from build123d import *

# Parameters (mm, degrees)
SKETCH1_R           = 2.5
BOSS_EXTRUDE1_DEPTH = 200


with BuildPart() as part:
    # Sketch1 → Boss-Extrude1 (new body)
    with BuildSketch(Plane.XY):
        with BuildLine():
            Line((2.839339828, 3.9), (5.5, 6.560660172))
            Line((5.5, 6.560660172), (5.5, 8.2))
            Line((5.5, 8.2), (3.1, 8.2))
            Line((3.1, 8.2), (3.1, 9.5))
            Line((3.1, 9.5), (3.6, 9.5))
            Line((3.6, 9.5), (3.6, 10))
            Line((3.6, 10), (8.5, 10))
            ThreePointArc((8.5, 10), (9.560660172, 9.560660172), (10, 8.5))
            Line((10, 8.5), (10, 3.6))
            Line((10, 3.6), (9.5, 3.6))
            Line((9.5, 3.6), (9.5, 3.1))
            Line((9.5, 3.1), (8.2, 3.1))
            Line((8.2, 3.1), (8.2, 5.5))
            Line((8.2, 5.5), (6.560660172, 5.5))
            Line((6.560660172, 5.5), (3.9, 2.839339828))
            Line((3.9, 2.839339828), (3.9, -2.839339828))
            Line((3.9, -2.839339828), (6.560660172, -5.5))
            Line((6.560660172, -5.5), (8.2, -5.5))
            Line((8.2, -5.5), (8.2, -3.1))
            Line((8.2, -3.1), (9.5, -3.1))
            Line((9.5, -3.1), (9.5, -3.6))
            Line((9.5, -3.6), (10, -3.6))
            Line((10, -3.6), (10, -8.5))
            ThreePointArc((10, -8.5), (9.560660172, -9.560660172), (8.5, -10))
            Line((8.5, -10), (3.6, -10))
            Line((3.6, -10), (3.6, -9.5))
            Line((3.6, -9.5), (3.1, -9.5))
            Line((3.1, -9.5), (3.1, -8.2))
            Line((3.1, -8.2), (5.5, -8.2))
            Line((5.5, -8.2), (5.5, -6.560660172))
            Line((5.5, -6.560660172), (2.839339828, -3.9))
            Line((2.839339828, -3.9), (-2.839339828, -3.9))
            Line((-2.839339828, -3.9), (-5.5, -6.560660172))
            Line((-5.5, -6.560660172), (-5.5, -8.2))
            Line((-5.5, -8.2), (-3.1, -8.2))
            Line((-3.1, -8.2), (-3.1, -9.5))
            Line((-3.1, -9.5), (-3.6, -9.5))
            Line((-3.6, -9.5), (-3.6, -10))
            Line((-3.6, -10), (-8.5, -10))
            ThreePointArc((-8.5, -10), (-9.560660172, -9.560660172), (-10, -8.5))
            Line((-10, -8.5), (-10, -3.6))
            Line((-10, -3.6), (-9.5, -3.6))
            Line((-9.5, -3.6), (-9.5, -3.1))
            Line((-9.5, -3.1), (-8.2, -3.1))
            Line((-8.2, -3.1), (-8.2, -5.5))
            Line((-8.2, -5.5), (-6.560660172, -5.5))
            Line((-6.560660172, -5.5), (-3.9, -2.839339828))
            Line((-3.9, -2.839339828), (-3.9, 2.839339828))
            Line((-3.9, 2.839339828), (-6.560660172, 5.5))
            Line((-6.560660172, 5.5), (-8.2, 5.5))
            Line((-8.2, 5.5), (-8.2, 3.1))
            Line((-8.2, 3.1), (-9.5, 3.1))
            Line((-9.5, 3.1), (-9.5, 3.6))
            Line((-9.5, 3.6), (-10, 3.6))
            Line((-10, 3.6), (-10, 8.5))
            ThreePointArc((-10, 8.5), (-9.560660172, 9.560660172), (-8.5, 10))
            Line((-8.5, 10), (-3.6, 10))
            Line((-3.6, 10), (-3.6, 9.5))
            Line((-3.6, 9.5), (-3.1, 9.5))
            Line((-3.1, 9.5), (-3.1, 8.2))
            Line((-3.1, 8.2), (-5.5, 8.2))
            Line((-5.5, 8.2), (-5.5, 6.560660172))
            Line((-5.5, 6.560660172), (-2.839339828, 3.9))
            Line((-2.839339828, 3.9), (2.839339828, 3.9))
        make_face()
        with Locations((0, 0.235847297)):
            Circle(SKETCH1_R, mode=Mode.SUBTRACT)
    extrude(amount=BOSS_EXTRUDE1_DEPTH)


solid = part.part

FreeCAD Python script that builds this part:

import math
import FreeCAD as App
import Part
import Sketcher
from FreeCAD import Vector
Q = App.Units.Quantity

doc = App.newDocument("Part")
body = doc.addObject("PartDesign::Body", "Body")

# Sketch on XY plane
sketch1 = body.newObject("Sketcher::SketchObject", "Sketch")
sketch1.AttachmentSupport = (doc.getObject("XY_Plane"), [""])
sketch1.MapMode = "FlatFace"
sketch1.addGeometry([
    Part.LineSegment(Vector(5.5, 6.6, 0), Vector(2.8, 3.9, 0)),  # 0
    Part.LineSegment(Vector(2.8, 3.9, 0), Vector(-2.8, 3.9, 0)),  # 1
    Part.LineSegment(Vector(-2.8, 3.9, 0), Vector(-5.5, 6.6, 0)),  # 2
    Part.LineSegment(Vector(-5.5, 6.6, 0), Vector(-5.5, 8.2, 0)),  # 3
    Part.LineSegment(Vector(-5.5, 8.2, 0), Vector(-3.1, 8.2, 0)),  # 4
    Part.LineSegment(Vector(-3.1, 8.2, 0), Vector(-3.1, 9.5, 0)),  # 5
    Part.LineSegment(Vector(-3.1, 9.5, 0), Vector(-3.6, 9.5, 0)),  # 6
    Part.LineSegment(Vector(-3.6, 9.5, 0), Vector(-3.6, 10, 0)),  # 7
    Part.LineSegment(Vector(-3.6, 10, 0), Vector(-8.5, 10, 0)),  # 8
    Part.ArcOfCircle(Part.Circle(Vector(-8.5, 8.5, 0), Vector(0, 0, 1), 1.5), math.radians(90), math.radians(180)),  # 9
    Part.LineSegment(Vector(-10, 8.5, 0), Vector(-10, 3.6, 0)),  # 10
    Part.LineSegment(Vector(-10, 3.6, 0), Vector(-9.5, 3.6, 0)),  # 11
    Part.LineSegment(Vector(-9.5, 3.6, 0), Vector(-9.5, 3.1, 0)),  # 12
    Part.LineSegment(Vector(-9.5, 3.1, 0), Vector(-8.2, 3.1, 0)),  # 13
    Part.LineSegment(Vector(-8.2, 3.1, 0), Vector(-8.2, 5.5, 0)),  # 14
    Part.LineSegment(Vector(-8.2, 5.5, 0), Vector(-6.6, 5.5, 0)),  # 15
    Part.LineSegment(Vector(-6.6, 5.5, 0), Vector(-3.9, 2.8, 0)),  # 16
    Part.LineSegment(Vector(-3.9, 2.8, 0), Vector(-3.9, -2.8, 0)),  # 17
    Part.LineSegment(Vector(-3.9, -2.8, 0), Vector(-6.6, -5.5, 0)),  # 18
    Part.LineSegment(Vector(-6.6, -5.5, 0), Vector(-8.2, -5.5, 0)),  # 19
    Part.LineSegment(Vector(-8.2, -5.5, 0), Vector(-8.2, -3.1, 0)),  # 20
    Part.LineSegment(Vector(-8.2, -3.1, 0), Vector(-9.5, -3.1, 0)),  # 21
    Part.LineSegment(Vector(-9.5, -3.1, 0), Vector(-9.5, -3.6, 0)),  # 22
    Part.LineSegment(Vector(-9.5, -3.6, 0), Vector(-10, -3.6, 0)),  # 23
    Part.LineSegment(Vector(-10, -3.6, 0), Vector(-10, -8.5, 0)),  # 24
    Part.ArcOfCircle(Part.Circle(Vector(-8.5, -8.5, 0), Vector(0, 0, 1), 1.5), math.radians(180), math.radians(270)),  # 25
    Part.LineSegment(Vector(-8.5, -10, 0), Vector(-3.6, -10, 0)),  # 26
    Part.LineSegment(Vector(-3.6, -10, 0), Vector(-3.6, -9.5, 0)),  # 27
    Part.LineSegment(Vector(-3.6, -9.5, 0), Vector(-3.1, -9.5, 0)),  # 28
    Part.LineSegment(Vector(-3.1, -9.5, 0), Vector(-3.1, -8.2, 0)),  # 29
    Part.LineSegment(Vector(-3.1, -8.2, 0), Vector(-5.5, -8.2, 0)),  # 30
    Part.LineSegment(Vector(-5.5, -8.2, 0), Vector(-5.5, -6.6, 0)),  # 31
    Part.LineSegment(Vector(-5.5, -6.6, 0), Vector(-2.8, -3.9, 0)),  # 32
    Part.LineSegment(Vector(-2.8, -3.9, 0), Vector(2.8, -3.9, 0)),  # 33
    Part.LineSegment(Vector(2.8, -3.9, 0), Vector(5.5, -6.6, 0)),  # 34
    Part.LineSegment(Vector(5.5, -6.6, 0), Vector(5.5, -8.2, 0)),  # 35
    Part.LineSegment(Vector(5.5, -8.2, 0), Vector(3.1, -8.2, 0)),  # 36
    Part.LineSegment(Vector(3.1, -8.2, 0), Vector(3.1, -9.5, 0)),  # 37
    Part.LineSegment(Vector(3.1, -9.5, 0), Vector(3.6, -9.5, 0)),  # 38
    Part.LineSegment(Vector(3.6, -9.5, 0), Vector(3.6, -10, 0)),  # 39
    Part.LineSegment(Vector(3.6, -10, 0), Vector(8.5, -10, 0)),  # 40
    Part.ArcOfCircle(Part.Circle(Vector(8.5, -8.5, 0), Vector(0, 0, 1), 1.5), math.radians(-90), math.radians(0)),  # 41
    Part.LineSegment(Vector(10, -8.5, 0), Vector(10, -3.6, 0)),  # 42
    Part.LineSegment(Vector(10, -3.6, 0), Vector(9.5, -3.6, 0)),  # 43
    Part.LineSegment(Vector(9.5, -3.6, 0), Vector(9.5, -3.1, 0)),  # 44
    Part.LineSegment(Vector(9.5, -3.1, 0), Vector(8.2, -3.1, 0)),  # 45
    Part.LineSegment(Vector(8.2, -3.1, 0), Vector(8.2, -5.5, 0)),  # 46
    Part.LineSegment(Vector(8.2, -5.5, 0), Vector(6.6, -5.5, 0)),  # 47
    Part.LineSegment(Vector(6.6, -5.5, 0), Vector(3.9, -2.8, 0)),  # 48
    Part.LineSegment(Vector(3.9, -2.8, 0), Vector(3.9, 2.8, 0)),  # 49
    Part.LineSegment(Vector(3.9, 2.8, 0), Vector(6.6, 5.5, 0)),  # 50
    Part.LineSegment(Vector(6.6, 5.5, 0), Vector(8.2, 5.5, 0)),  # 51
    Part.LineSegment(Vector(8.2, 5.5, 0), Vector(8.2, 3.1, 0)),  # 52
    Part.LineSegment(Vector(8.2, 3.1, 0), Vector(9.5, 3.1, 0)),  # 53
    Part.LineSegment(Vector(9.5, 3.1, 0), Vector(9.5, 3.6, 0)),  # 54
    Part.LineSegment(Vector(9.5, 3.6, 0), Vector(10, 3.6, 0)),  # 55
    Part.LineSegment(Vector(10, 3.6, 0), Vector(10, 8.5, 0)),  # 56
    Part.ArcOfCircle(Part.Circle(Vector(8.5, 8.5, 0), Vector(0, 0, 1), 1.5), math.radians(0), math.radians(90)),  # 57
    Part.LineSegment(Vector(8.5, 10, 0), Vector(3.6, 10, 0)),  # 58
    Part.LineSegment(Vector(3.6, 10, 0), Vector(3.6, 9.5, 0)),  # 59
    Part.LineSegment(Vector(3.6, 9.5, 0), Vector(3.1, 9.5, 0)),  # 60
    Part.LineSegment(Vector(3.1, 9.5, 0), Vector(3.1, 8.2, 0)),  # 61
    Part.LineSegment(Vector(3.1, 8.2, 0), Vector(5.5, 8.2, 0)),  # 62
    Part.LineSegment(Vector(5.5, 8.2, 0), Vector(5.5, 6.6, 0)),  # 63
    Part.Circle(Vector(0, 0.2, 0), Vector(0, 0, 1), 2.5),  # 64
], False)
sketch1.addConstraint([
    Sketcher.Constraint("Coincident", 0, 2, 1, 1),
    Sketcher.Constraint("Coincident", 1, 2, 2, 1),
    Sketcher.Constraint("Coincident", 2, 2, 3, 1),
    Sketcher.Constraint("Coincident", 3, 2, 4, 1),
    Sketcher.Constraint("Coincident", 4, 2, 5, 1),
    Sketcher.Constraint("Coincident", 5, 2, 6, 1),
    Sketcher.Constraint("Coincident", 6, 2, 7, 1),
    Sketcher.Constraint("Coincident", 7, 2, 8, 1),
    Sketcher.Constraint("Tangent", 8, 2, 9, 1),
    Sketcher.Constraint("Tangent", 9, 2, 10, 1),
    Sketcher.Constraint("Coincident", 10, 2, 11, 1),
    Sketcher.Constraint("Coincident", 11, 2, 12, 1),
    Sketcher.Constraint("Coincident", 12, 2, 13, 1),
    Sketcher.Constraint("Coincident", 13, 2, 14, 1),
    Sketcher.Constraint("Coincident", 14, 2, 15, 1),
    Sketcher.Constraint("Coincident", 15, 2, 16, 1),
    Sketcher.Constraint("Coincident", 16, 2, 17, 1),
    Sketcher.Constraint("Coincident", 17, 2, 18, 1),
    Sketcher.Constraint("Coincident", 18, 2, 19, 1),
    Sketcher.Constraint("Coincident", 19, 2, 20, 1),
    Sketcher.Constraint("Coincident", 20, 2, 21, 1),
    Sketcher.Constraint("Coincident", 21, 2, 22, 1),
    Sketcher.Constraint("Coincident", 22, 2, 23, 1),
    Sketcher.Constraint("Coincident", 23, 2, 24, 1),
    Sketcher.Constraint("Tangent", 24, 2, 25, 1),
    Sketcher.Constraint("Tangent", 25, 2, 26, 1),
    Sketcher.Constraint("Coincident", 26, 2, 27, 1),
    Sketcher.Constraint("Coincident", 27, 2, 28, 1),
    Sketcher.Constraint("Coincident", 28, 2, 29, 1),
    Sketcher.Constraint("Coincident", 29, 2, 30, 1),
    Sketcher.Constraint("Coincident", 30, 2, 31, 1),
    Sketcher.Constraint("Coincident", 31, 2, 32, 1),
    Sketcher.Constraint("Coincident", 32, 2, 33, 1),
    Sketcher.Constraint("Coincident", 33, 2, 34, 1),
    Sketcher.Constraint("Coincident", 34, 2, 35, 1),
    Sketcher.Constraint("Coincident", 35, 2, 36, 1),
    Sketcher.Constraint("Coincident", 36, 2, 37, 1),
    Sketcher.Constraint("Coincident", 37, 2, 38, 1),
    Sketcher.Constraint("Coincident", 38, 2, 39, 1),
    Sketcher.Constraint("Coincident", 39, 2, 40, 1),
    Sketcher.Constraint("Tangent", 40, 2, 41, 1),
    Sketcher.Constraint("Tangent", 41, 2, 42, 1),
    Sketcher.Constraint("Coincident", 42, 2, 43, 1),
    Sketcher.Constraint("Coincident", 43, 2, 44, 1),
    Sketcher.Constraint("Coincident", 44, 2, 45, 1),
    Sketcher.Constraint("Coincident", 45, 2, 46, 1),
    Sketcher.Constraint("Coincident", 46, 2, 47, 1),
    Sketcher.Constraint("Coincident", 47, 2, 48, 1),
    Sketcher.Constraint("Coincident", 48, 2, 49, 1),
    Sketcher.Constraint("Coincident", 49, 2, 50, 1),
    Sketcher.Constraint("Coincident", 50, 2, 51, 1),
    Sketcher.Constraint("Coincident", 51, 2, 52, 1),
    Sketcher.Constraint("Coincident", 52, 2, 53, 1),
    Sketcher.Constraint("Coincident", 53, 2, 54, 1),
    Sketcher.Constraint("Coincident", 54, 2, 55, 1),
    Sketcher.Constraint("Coincident", 55, 2, 56, 1),
    Sketcher.Constraint("Tangent", 56, 2, 57, 1),
    Sketcher.Constraint("Tangent", 57, 2, 58, 1),
    Sketcher.Constraint("Coincident", 58, 2, 59, 1),
    Sketcher.Constraint("Coincident", 59, 2, 60, 1),
    Sketcher.Constraint("Coincident", 60, 2, 61, 1),
    Sketcher.Constraint("Coincident", 61, 2, 62, 1),
    Sketcher.Constraint("Coincident", 62, 2, 63, 1),
    Sketcher.Constraint("Coincident", 63, 2, 0, 1),
    Sketcher.Constraint("Horizontal", 1),
    Sketcher.Constraint("Vertical", 3),
    Sketcher.Constraint("Horizontal", 4),
    Sketcher.Constraint("Vertical", 5),
    Sketcher.Constraint("Horizontal", 6),
    Sketcher.Constraint("Vertical", 7),
    Sketcher.Constraint("Horizontal", 8),
    Sketcher.Constraint("Vertical", 10),
    Sketcher.Constraint("Horizontal", 11),
    Sketcher.Constraint("Vertical", 12),
    Sketcher.Constraint("Horizontal", 13),
    Sketcher.Constraint("Vertical", 14),
    Sketcher.Constraint("Horizontal", 15),
    Sketcher.Constraint("Vertical", 17),
    Sketcher.Constraint("Horizontal", 19),
    Sketcher.Constraint("Vertical", 20),
    Sketcher.Constraint("Horizontal", 21),
    Sketcher.Constraint("Vertical", 22),
    Sketcher.Constraint("Horizontal", 23),
    Sketcher.Constraint("Vertical", 24),
    Sketcher.Constraint("Horizontal", 26),
    Sketcher.Constraint("Vertical", 27),
    Sketcher.Constraint("Horizontal", 28),
    Sketcher.Constraint("Vertical", 29),
    Sketcher.Constraint("Horizontal", 30),
    Sketcher.Constraint("Vertical", 31),
    Sketcher.Constraint("Horizontal", 33),
    Sketcher.Constraint("Vertical", 35),
    Sketcher.Constraint("Horizontal", 36),
    Sketcher.Constraint("Vertical", 37),
    Sketcher.Constraint("Horizontal", 38),
    Sketcher.Constraint("Vertical", 39),
    Sketcher.Constraint("Horizontal", 40),
    Sketcher.Constraint("Vertical", 42),
    Sketcher.Constraint("Horizontal", 43),
    Sketcher.Constraint("Vertical", 44),
    Sketcher.Constraint("Horizontal", 45),
    Sketcher.Constraint("Vertical", 46),
    Sketcher.Constraint("Horizontal", 47),
    Sketcher.Constraint("Vertical", 49),
    Sketcher.Constraint("Horizontal", 51),
    Sketcher.Constraint("Vertical", 52),
    Sketcher.Constraint("Horizontal", 53),
    Sketcher.Constraint("Vertical", 54),
    Sketcher.Constraint("Horizontal", 55),
    Sketcher.Constraint("Vertical", 56),
    Sketcher.Constraint("Horizontal", 58),
    Sketcher.Constraint("Vertical", 59),
    Sketcher.Constraint("Horizontal", 60),
    Sketcher.Constraint("Vertical", 61),
    Sketcher.Constraint("Horizontal", 62),
    Sketcher.Constraint("Vertical", 63),
    Sketcher.Constraint("Equal", 9, 25),
    Sketcher.Constraint("Equal", 25, 41),
    Sketcher.Constraint("Equal", 41, 57),
    Sketcher.Constraint("Symmetric", 9, 3, 41, 3, -1, 1),
    Sketcher.Constraint("Symmetric", 25, 3, 57, 3, -1, 1),
    Sketcher.Constraint("Symmetric", 0, 2, 32, 2, -1, 1),
    Sketcher.Constraint("Symmetric", 2, 2, 34, 2, -1, 1),
    Sketcher.Constraint("Symmetric", 4, 2, 36, 2, -1, 1),
    Sketcher.Constraint("Symmetric", 6, 2, 38, 2, -1, 1),
    Sketcher.Constraint("Symmetric", 11, 2, 43, 2, -1, 1),
    Sketcher.Constraint("Symmetric", 13, 2, 45, 2, -1, 1),
    Sketcher.Constraint("Symmetric", 15, 2, 47, 2, -1, 1),
    Sketcher.Constraint("Symmetric", 16, 2, 48, 2, -1, 1),
    Sketcher.Constraint("Symmetric", 18, 2, 50, 2, -1, 1),
    Sketcher.Constraint("Symmetric", 20, 2, 52, 2, -1, 1),
    Sketcher.Constraint("Symmetric", 22, 2, 54, 2, -1, 1),
    Sketcher.Constraint("Symmetric", 27, 2, 59, 2, -1, 1),
    Sketcher.Constraint("Symmetric", 29, 2, 61, 2, -1, 1),
    Sketcher.Constraint("Symmetric", 31, 2, 63, 2, -1, 1),
    Sketcher.Constraint("Symmetric", 25, 3, 41, 3, -2),
    Sketcher.Constraint("Symmetric", 31, 2, 34, 2, -2),
    Sketcher.Constraint("Symmetric", 29, 2, 36, 2, -2),
    Sketcher.Constraint("Symmetric", 27, 2, 38, 2, -2),
    Sketcher.Constraint("Symmetric", 22, 2, 43, 2, -2),
    Sketcher.Constraint("Symmetric", 20, 2, 45, 2, -2),
    Sketcher.Constraint("Symmetric", 18, 2, 47, 2, -2),
    Sketcher.Constraint("PointOnObject", 64, 3, -2),
    Sketcher.Constraint("Perpendicular", 0, 2),
    Sketcher.Constraint("Parallel", 2, 16),
    Sketcher.Constraint("Perpendicular", 16, 18),
    Sketcher.Constraint("Perpendicular", 32, 34),
    Sketcher.Constraint("Perpendicular", 48, 50),
    Sketcher.Constraint("Horizontal", 17, 2, 48, 2),
    Sketcher.Constraint("Equal", 6, 11),
    Sketcher.Constraint("Equal", 51, 3),
    Sketcher.Constraint("Equal", 53, 5),
    Sketcher.Constraint("Equal", 60, 7),
    Sketcher.Constraint("Equal", 58, 10),
    Sketcher.Constraint("Equal", 7, 12),
    Sketcher.Constraint("Equal", 62, 14),
    Sketcher.Constraint("Equal", 33, 17),
    Sketcher.Constraint("Equal", 2, 16),
    Sketcher.Constraint("Diameter", 64, Q("5 mm")),
    Sketcher.Constraint("Radius", 9, Q("1.5 mm")),
    Sketcher.Constraint("DistanceX", 4, 1, 4, 2, Q("2.4 mm")),
    Sketcher.Constraint("DistanceX", 6, 2, 6, 1, Q("0.5 mm")),
    Sketcher.Constraint("DistanceX", 8, 2, 8, 1, Q("4.9 mm")),
    Sketcher.Constraint("DistanceX", 13, 1, 13, 2, Q("1.3 mm")),
    Sketcher.Constraint("DistanceY", -1, 1, 7, 2, Q("10 mm")),
    Sketcher.Constraint("DistanceY", -1, 1, 0, 2, Q("3.9 mm")),
    Sketcher.Constraint("DistanceX", 1, 2, 1, 1, Q("5.67868 mm")),
    Sketcher.Constraint("DistanceY", -1, 1, 64, 3, Q("0.235847 mm")),
])
pad1 = body.newObject("PartDesign::Pad", "Pad")
pad1.Profile = sketch1
pad1.Length = 200

doc.recompute()
